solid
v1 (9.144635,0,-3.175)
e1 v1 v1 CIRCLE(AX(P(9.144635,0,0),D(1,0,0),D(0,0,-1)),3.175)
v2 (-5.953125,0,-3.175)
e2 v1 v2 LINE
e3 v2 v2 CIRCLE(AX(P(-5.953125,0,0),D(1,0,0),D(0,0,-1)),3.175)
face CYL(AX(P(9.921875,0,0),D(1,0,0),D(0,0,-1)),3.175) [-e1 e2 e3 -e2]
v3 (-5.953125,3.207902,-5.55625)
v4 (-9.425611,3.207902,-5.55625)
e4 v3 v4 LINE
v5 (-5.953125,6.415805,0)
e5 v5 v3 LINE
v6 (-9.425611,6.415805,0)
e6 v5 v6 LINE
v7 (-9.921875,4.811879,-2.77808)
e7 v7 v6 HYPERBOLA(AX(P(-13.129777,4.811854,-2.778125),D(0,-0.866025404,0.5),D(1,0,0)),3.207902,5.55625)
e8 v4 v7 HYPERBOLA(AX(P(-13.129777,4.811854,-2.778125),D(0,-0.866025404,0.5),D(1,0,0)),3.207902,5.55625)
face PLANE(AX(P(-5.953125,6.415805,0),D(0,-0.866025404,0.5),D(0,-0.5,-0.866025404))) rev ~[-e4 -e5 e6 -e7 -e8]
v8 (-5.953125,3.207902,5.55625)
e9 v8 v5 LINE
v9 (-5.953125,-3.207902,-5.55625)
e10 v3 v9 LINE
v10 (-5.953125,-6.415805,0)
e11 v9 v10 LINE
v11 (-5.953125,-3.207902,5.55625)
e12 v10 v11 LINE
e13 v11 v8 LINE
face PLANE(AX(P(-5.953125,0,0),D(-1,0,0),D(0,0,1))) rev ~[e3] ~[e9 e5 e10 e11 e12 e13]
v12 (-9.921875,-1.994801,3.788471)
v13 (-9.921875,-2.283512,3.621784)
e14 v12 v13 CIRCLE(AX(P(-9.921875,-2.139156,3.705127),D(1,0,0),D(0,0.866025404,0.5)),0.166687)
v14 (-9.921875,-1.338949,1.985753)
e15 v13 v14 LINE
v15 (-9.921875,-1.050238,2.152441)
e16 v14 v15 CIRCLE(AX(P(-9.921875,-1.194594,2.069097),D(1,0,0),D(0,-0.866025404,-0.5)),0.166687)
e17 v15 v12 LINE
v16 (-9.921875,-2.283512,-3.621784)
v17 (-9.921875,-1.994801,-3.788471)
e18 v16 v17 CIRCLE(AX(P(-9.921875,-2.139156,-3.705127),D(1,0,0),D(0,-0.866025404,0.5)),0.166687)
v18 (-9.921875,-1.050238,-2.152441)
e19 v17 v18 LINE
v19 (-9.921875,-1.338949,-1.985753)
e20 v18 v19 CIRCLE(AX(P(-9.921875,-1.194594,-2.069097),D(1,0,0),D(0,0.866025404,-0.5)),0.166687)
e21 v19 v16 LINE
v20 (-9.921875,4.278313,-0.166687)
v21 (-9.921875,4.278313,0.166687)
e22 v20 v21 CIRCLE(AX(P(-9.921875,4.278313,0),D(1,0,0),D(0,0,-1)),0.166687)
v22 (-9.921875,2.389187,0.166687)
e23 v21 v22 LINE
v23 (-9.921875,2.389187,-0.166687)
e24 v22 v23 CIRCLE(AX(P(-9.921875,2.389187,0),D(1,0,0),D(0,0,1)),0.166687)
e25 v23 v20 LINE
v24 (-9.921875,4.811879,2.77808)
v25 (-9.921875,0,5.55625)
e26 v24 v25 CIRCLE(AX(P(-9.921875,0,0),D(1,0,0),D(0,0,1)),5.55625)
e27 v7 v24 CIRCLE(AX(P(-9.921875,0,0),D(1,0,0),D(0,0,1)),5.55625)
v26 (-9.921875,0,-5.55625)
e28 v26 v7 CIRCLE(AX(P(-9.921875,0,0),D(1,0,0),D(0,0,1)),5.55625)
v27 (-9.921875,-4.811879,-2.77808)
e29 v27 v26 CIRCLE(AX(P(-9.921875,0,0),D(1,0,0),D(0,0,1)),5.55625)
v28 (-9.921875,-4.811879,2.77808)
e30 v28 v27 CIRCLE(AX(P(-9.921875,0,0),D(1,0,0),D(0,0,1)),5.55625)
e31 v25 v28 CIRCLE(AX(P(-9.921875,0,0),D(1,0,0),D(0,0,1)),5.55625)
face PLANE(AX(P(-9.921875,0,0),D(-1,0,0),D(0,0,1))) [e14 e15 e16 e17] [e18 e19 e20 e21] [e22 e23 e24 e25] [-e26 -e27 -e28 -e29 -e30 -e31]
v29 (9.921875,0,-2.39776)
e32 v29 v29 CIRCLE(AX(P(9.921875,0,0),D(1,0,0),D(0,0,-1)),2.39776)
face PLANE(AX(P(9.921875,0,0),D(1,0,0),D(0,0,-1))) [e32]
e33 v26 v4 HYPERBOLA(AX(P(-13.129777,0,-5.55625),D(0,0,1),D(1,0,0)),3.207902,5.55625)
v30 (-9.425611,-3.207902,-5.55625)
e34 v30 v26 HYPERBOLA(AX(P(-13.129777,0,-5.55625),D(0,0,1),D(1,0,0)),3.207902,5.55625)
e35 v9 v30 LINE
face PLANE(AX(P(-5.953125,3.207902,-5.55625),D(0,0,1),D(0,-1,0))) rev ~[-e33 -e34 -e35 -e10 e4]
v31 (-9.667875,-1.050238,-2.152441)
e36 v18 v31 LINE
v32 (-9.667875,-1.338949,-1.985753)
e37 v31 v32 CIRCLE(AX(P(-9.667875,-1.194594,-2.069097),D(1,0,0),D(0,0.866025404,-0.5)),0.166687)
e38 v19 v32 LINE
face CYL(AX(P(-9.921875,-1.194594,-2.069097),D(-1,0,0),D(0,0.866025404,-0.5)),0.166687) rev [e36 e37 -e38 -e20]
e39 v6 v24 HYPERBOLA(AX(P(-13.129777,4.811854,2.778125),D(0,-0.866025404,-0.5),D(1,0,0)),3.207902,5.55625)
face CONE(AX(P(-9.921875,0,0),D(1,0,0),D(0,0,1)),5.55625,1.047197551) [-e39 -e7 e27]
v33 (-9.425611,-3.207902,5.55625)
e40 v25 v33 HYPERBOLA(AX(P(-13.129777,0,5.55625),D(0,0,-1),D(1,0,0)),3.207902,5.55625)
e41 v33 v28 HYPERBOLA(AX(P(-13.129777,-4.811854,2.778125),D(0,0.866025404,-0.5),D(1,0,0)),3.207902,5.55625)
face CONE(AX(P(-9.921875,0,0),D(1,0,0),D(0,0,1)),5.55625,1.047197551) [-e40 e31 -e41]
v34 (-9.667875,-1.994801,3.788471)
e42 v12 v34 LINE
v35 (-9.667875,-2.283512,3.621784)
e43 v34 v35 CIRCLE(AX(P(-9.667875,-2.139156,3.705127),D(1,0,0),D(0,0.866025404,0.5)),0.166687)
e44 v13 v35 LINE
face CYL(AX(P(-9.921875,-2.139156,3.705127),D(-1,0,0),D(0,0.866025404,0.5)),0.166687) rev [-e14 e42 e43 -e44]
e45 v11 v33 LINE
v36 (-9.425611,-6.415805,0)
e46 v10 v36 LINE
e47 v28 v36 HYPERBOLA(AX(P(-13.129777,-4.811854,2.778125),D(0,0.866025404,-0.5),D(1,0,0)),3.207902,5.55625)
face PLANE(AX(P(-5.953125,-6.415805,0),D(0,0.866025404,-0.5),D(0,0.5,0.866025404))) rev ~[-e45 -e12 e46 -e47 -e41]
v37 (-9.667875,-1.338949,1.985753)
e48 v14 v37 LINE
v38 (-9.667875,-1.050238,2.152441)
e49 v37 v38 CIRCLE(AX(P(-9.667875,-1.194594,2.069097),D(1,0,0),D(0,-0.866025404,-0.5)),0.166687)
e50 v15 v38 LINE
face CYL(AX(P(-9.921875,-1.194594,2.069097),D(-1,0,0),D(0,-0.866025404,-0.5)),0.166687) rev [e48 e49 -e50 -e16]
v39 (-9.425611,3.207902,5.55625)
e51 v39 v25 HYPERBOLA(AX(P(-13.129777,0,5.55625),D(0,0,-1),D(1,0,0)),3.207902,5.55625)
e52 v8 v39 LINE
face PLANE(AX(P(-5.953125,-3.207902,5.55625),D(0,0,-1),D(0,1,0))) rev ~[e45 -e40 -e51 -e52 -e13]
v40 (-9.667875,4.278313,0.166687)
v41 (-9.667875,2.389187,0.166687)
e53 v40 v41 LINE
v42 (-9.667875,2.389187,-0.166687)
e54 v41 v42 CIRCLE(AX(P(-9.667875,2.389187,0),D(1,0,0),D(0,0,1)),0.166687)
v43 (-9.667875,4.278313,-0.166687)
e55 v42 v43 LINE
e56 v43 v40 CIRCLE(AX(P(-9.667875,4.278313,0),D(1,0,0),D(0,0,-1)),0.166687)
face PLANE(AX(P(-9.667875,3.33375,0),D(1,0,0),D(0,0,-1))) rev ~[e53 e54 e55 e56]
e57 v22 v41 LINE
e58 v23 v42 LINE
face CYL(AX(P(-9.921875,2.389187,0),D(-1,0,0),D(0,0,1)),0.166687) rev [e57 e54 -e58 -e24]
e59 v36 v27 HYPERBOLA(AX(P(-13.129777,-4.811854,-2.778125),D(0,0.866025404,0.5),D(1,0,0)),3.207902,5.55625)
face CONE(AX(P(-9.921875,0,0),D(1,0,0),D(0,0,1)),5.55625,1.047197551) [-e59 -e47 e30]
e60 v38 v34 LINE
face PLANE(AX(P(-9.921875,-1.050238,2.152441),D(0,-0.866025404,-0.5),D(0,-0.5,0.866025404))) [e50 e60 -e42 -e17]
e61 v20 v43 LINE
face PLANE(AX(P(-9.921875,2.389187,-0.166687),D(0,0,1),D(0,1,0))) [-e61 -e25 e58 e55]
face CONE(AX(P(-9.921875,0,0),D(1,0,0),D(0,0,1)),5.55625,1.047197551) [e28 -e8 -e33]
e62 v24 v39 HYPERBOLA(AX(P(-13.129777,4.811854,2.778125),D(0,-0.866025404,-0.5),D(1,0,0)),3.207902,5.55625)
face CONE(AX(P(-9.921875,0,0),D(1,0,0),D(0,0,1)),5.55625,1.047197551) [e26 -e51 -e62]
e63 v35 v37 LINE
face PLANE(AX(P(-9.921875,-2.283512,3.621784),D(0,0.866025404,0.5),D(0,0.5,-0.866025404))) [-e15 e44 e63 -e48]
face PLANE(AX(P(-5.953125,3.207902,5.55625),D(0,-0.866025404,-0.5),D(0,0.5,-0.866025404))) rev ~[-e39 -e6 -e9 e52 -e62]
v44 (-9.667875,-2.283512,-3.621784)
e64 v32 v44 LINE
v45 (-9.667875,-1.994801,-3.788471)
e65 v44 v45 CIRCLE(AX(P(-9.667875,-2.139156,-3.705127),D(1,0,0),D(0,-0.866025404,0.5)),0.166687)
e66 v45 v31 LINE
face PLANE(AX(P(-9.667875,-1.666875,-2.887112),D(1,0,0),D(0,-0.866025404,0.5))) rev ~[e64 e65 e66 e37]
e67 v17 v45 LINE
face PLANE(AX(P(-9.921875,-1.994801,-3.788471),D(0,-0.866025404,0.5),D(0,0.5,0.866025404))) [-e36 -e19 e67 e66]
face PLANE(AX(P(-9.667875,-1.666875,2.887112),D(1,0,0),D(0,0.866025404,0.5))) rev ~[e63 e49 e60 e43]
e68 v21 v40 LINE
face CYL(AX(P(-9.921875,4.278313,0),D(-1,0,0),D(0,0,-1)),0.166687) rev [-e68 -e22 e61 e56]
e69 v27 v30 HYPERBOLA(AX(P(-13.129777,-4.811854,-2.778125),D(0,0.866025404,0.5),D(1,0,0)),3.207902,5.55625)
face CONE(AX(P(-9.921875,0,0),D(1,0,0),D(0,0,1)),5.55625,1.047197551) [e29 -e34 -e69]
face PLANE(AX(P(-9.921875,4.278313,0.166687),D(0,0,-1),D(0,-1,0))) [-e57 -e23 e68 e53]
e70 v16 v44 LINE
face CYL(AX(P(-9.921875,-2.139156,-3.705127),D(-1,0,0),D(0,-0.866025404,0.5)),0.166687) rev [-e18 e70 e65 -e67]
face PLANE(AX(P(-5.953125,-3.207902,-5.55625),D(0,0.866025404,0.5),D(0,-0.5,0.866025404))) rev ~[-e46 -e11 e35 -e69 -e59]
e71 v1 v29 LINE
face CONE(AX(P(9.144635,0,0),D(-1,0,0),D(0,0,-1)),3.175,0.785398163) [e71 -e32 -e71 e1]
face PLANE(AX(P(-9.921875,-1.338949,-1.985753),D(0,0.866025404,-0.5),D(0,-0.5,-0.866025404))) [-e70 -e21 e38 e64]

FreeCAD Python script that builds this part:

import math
import FreeCAD as App
import Part
import Sketcher
from FreeCAD import Vector
Q = App.Units.Quantity


def edges_at(feature, points):
    """Names of the edges that pass closest to the given points."""
    edges = feature.Shape.Edges
    near = lambda p: min(range(len(edges)), key=lambda i: edges[i].distToShape(Part.Vertex(*p))[0])
    return sorted({f"Edge{near(p) + 1}" for p in points})

doc = App.newDocument("Part")
body = doc.addObject("PartDesign::Body", "Body")

sketch1 = doc.addObject("Sketcher::SketchObject", "Sketch")
body.addObject(sketch1)
sketch1.AttachmentSupport = (doc.YZ_Plane, [""])
sketch1.MapMode = "FlatFace"
sketch1.AttachmentOffset = App.Placement(Vector(0, 0, 0.390625 * 25.4), App.Rotation())
sketch1.addGeometry(Part.Circle(Vector(0, 0, 0), Vector(0, 0, 1), 3.2), False)
sketch1.addConstraint(Sketcher.Constraint("Coincident", 0, 3, -1, 1))
sketch1.addConstraint(Sketcher.Constraint("Diameter", 0, Q("0.25 in")))
pad1 = doc.addObject("PartDesign::Pad", "Pad")
body.addObject(pad1)
pad1.Profile = sketch1
pad1.Length = Q("0.625 in")
pad1.Reversed = True
doc.recompute()

chamfer = doc.addObject("PartDesign::Chamfer", "Chamfer")
body.addObject(chamfer)
chamfer.Base = (pad1, edges_at(pad1, [(9.922, 0, 3.175)]))
chamfer.Size = Q("0.0306 in")

sketch2 = doc.addObject("Sketcher::SketchObject", "Sketch001")
body.addObject(sketch2)
sketch2.AttachmentSupport = (doc.YZ_Plane, [""])
sketch2.MapMode = "FlatFace"
sketch2.AttachmentOffset = App.Placement(Vector(0, 0, -0.234375 * 25.4), App.Rotation())
sketch2.addGeometry(Part.LineSegment(Vector(3, 6, 0), Vector(6, 0, 0)), False)
sketch2.addGeometry(Part.LineSegment(Vector(6, 0, 0), Vector(3, -6, 0)), False)
sketch2.addGeometry(Part.LineSegment(Vector(3, -6, 0), Vector(-3, -6, 0)), False)
sketch2.addGeometry(Part.LineSegment(Vector(-3, -6, 0), Vector(-6, 0, 0)), False)
sketch2.addGeometry(Part.LineSegment(Vector(-6, 0, 0), Vector(-3, 6, 0)), False)
sketch2.addGeometry(Part.LineSegment(Vector(-3, 6, 0), Vector(3, 6, 0)), False)
sketch2.addConstraint(Sketcher.Constraint("Coincident", 0, 2, 1, 1))
sketch2.addConstraint(Sketcher.Constraint("Coincident", 1, 2, 2, 1))
sketch2.addConstraint(Sketcher.Constraint("Coincident", 2, 2, 3, 1))
sketch2.addConstraint(Sketcher.Constraint("Coincident", 3, 2, 4, 1))
sketch2.addConstraint(Sketcher.Constraint("Coincident", 4, 2, 5, 1))
sketch2.addConstraint(Sketcher.Constraint("Coincident", 5, 2, 0, 1))
sketch2.addConstraint(Sketcher.Constraint("Horizontal", 2))
sketch2.addConstraint(Sketcher.Constraint("Horizontal", 5))
sketch2.addConstraint(Sketcher.Constraint("Symmetric", 0, 2, 3, 2, -1, 1))
sketch2.addConstraint(Sketcher.Constraint("Symmetric", 1, 2, 4, 2, -1, 1))
sketch2.addConstraint(Sketcher.Constraint("PointOnObject", 0, 2, -1))
sketch2.addConstraint(Sketcher.Constraint("Parallel", 0, 3))
sketch2.addConstraint(Sketcher.Constraint("Vertical", 2, 2, 4, 2))
sketch2.addConstraint(Sketcher.Constraint("Angle", 0, Q("-60 deg")))
sketch2.addConstraint(Sketcher.Constraint("DistanceY", 1, 2, -1, 1, Q("0.21875 in")))
sketch2.addConstraint(Sketcher.Constraint("DistanceX", 2, 2, 2, 1, 6.415805))
pad2 = doc.addObject("PartDesign::Pad", "Pad001")
body.addObject(pad2)
pad2.Profile = sketch2
pad2.Length = Q("0.15625 in")
pad2.Reversed = True

sketch3 = doc.addObject("Sketcher::SketchObject", "Sketch002")
body.addObject(sketch3)
sketch3.AttachmentSupport = (doc.YZ_Plane, [""])
sketch3.MapMode = "FlatFace"
sketch3.AttachmentOffset = App.Placement(Vector(0, 0, -0.390625 * 25.4), App.Rotation())
sketch3.addGeometry(Part.LineSegment(Vector(46, -45, 0), Vector(-46, -45, 0)), False)
sketch3.addGeometry(Part.LineSegment(Vector(-46, -45, 0), Vector(-46, 45, 0)), False)
sketch3.addGeometry(Part.LineSegment(Vector(-46, 45, 0), Vector(46, 45, 0)), False)
sketch3.addGeometry(Part.LineSegment(Vector(46, 45, 0), Vector(46, -45, 0)), False)
sketch3.addGeometry(Part.Circle(Vector(0, 0, 0), Vector(0, 0, 1), 6), False)
sketch3.addConstraint(Sketcher.Constraint("Coincident", 0, 2, 1, 1))
sketch3.addConstraint(Sketcher.Constraint("Coincident", 1, 2, 2, 1))
sketch3.addConstraint(Sketcher.Constraint("Coincident", 2, 2, 3, 1))
sketch3.addConstraint(Sketcher.Constraint("Coincident", 3, 2, 0, 1))
sketch3.addConstraint(Sketcher.Constraint("Horizontal", 0))
sketch3.addConstraint(Sketcher.Constraint("Vertical", 1))
sketch3.addConstraint(Sketcher.Constraint("Horizontal", 2))
sketch3.addConstraint(Sketcher.Constraint("Vertical", 3))
sketch3.addConstraint(Sketcher.Constraint("Coincident", 4, 3, -1, 1))
sketch3.addConstraint(Sketcher.Constraint("Symmetric", 0, 2, 2, 2, -1, 1))
sketch3.addConstraint(Sketcher.Constraint("Diameter", 4, Q("0.4375 in")))
sketch3.addConstraint(Sketcher.Constraint("DistanceX", 0, 2, 0, 1, 92.26))
sketch3.addConstraint(Sketcher.Constraint("DistanceY", 1, 1, 1, 2, 90.54))
pocket1 = doc.addObject("PartDesign::Pocket", "Pocket")
body.addObject(pocket1)
pocket1.Profile = sketch3
pocket1.Length = 20.84375
pocket1.Reversed = True
pocket1.TaperAngle = 60

sketch4 = doc.addObject("Sketcher::SketchObject", "Sketch003")
body.addObject(sketch4)
sketch4.AttachmentSupport = (doc.YZ_Plane, [""])
sketch4.MapMode = "FlatFace"
sketch4.AttachmentOffset = App.Placement(Vector(0, 0, -0.390625 * 25.4), App.Rotation())
sketch4.addGeometry(Part.LineSegment(Vector(2.39, 0.17, 0), Vector(4.28, 0.17, 0)), False)
sketch4.addGeometry(Part.ArcOfCircle(Part.Circle(Vector(4.28, 0, 0), Vector(0, 0, 1), 0.17), math.radians(-90), math.radians(90)), False)
sketch4.addGeometry(Part.LineSegment(Vector(4.28, -0.17, 0), Vector(2.39, -0.17, 0)), False)
sketch4.addGeometry(Part.ArcOfCircle(Part.Circle(Vector(2.39, 0, 0), Vector(0, 0, 1), 0.17), math.radians(90), math.radians(270)), False)
sketch4.addConstraint(Sketcher.Constraint("Tangent", 0, 2, 1, 2))
sketch4.addConstraint(Sketcher.Constraint("Tangent", 1, 1, 2, 1))
sketch4.addConstraint(Sketcher.Constraint("Tangent", 2, 2, 3, 2))
sketch4.addConstraint(Sketcher.Constraint("Tangent", 3, 1, 0, 1))
sketch4.addConstraint(Sketcher.Constraint("Horizontal", 0))
sketch4.addConstraint(Sketcher.Constraint("Horizontal", 2))
sketch4.addConstraint(Sketcher.Constraint("PointOnObject", 1, 3, -1))
sketch4.addConstraint(Sketcher.Constraint("Radius", 1, 0.166687))
sketch4.addConstraint(Sketcher.Constraint("DistanceX", 0, 1, 0, 2, 1.889125))
sketch4.addConstraint(Sketcher.Constraint("DistanceX", -1, 1, 1, 3, 4.278313))
pocket2 = doc.addObject("PartDesign::Pocket", "Pocket001")
body.addObject(pocket2)
pocket2.Profile = sketch4
pocket2.Length = Q("0.01 in")
pocket2.Reversed = True
doc.recompute()

polarpattern = doc.addObject("PartDesign::PolarPattern", "PolarPattern")
body.addObject(polarpattern)
polarpattern.Originals = [pocket2]
polarpattern.Axis = (doc.X_Axis, [""])
polarpattern.Angle = 360
polarpattern.Occurrences = 3
body.Tip = polarpattern

doc.recompute()
